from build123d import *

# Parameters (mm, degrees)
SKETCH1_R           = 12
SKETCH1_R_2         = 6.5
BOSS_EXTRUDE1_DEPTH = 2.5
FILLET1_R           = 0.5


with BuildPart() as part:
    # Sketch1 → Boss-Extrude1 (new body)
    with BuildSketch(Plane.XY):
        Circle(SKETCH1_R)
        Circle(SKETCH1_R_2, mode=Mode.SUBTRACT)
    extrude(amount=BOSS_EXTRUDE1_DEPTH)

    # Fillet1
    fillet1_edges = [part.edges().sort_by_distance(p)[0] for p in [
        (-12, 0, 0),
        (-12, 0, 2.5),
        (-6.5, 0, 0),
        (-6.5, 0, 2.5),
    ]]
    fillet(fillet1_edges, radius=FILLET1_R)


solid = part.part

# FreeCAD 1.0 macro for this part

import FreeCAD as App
import Part
import Sketcher


def edges_at(feature, points):
    """Names of the edges that pass closest to the given points."""
    edges = feature.Shape.Edges
    near = lambda p: min(range(len(edges)), key=lambda i: edges[i].distToShape(Part.Vertex(*p))[0])
    return sorted({f"Edge{near(p) + 1}" for p in points})

doc = App.newDocument("Part")
body = doc.addObject("PartDesign::Body", "Body")

# Sketch on XY plane
sketch1 = body.newObject("Sketcher::SketchObject", "Sketch")
sketch1.AttachmentSupport = (doc.getObject("XY_Plane"), [""])
sketch1.MapMode = "FlatFace"
sketch1.addGeometry([
    Part.Circle(App.Vector(0, 0, 0), App.Vector(0, 0, 1), 12),
    Part.Circle(App.Vector(0, 0, 0), App.Vector(0, 0, 1), 6.5),
], False)
sketch1.addConstraint([
    Sketcher.Constraint("Coincident", 0, 3, -1, 1),
    Sketcher.Constraint("Coincident", 1, 3, -1, 1),
    Sketcher.Constraint("Diameter", 0, 24.0),
    Sketcher.Constraint("Diameter", 1, 13.0),
])
pad1 = body.newObject("PartDesign::Pad", "Pad")
pad1.Profile = sketch1
pad1.Length = 2.5
doc.recompute()

fillet = body.newObject("PartDesign::Fillet", "Fillet")
fillet.Base = (pad1, edges_at(pad1, [
    (-12, 0, 0),
    (-12, 0, 2.5),
    (-6.5, 0, 0),
    (-6.5, 0, 2.5),
]))
fillet.Radius = 0.5

doc.recompute()
